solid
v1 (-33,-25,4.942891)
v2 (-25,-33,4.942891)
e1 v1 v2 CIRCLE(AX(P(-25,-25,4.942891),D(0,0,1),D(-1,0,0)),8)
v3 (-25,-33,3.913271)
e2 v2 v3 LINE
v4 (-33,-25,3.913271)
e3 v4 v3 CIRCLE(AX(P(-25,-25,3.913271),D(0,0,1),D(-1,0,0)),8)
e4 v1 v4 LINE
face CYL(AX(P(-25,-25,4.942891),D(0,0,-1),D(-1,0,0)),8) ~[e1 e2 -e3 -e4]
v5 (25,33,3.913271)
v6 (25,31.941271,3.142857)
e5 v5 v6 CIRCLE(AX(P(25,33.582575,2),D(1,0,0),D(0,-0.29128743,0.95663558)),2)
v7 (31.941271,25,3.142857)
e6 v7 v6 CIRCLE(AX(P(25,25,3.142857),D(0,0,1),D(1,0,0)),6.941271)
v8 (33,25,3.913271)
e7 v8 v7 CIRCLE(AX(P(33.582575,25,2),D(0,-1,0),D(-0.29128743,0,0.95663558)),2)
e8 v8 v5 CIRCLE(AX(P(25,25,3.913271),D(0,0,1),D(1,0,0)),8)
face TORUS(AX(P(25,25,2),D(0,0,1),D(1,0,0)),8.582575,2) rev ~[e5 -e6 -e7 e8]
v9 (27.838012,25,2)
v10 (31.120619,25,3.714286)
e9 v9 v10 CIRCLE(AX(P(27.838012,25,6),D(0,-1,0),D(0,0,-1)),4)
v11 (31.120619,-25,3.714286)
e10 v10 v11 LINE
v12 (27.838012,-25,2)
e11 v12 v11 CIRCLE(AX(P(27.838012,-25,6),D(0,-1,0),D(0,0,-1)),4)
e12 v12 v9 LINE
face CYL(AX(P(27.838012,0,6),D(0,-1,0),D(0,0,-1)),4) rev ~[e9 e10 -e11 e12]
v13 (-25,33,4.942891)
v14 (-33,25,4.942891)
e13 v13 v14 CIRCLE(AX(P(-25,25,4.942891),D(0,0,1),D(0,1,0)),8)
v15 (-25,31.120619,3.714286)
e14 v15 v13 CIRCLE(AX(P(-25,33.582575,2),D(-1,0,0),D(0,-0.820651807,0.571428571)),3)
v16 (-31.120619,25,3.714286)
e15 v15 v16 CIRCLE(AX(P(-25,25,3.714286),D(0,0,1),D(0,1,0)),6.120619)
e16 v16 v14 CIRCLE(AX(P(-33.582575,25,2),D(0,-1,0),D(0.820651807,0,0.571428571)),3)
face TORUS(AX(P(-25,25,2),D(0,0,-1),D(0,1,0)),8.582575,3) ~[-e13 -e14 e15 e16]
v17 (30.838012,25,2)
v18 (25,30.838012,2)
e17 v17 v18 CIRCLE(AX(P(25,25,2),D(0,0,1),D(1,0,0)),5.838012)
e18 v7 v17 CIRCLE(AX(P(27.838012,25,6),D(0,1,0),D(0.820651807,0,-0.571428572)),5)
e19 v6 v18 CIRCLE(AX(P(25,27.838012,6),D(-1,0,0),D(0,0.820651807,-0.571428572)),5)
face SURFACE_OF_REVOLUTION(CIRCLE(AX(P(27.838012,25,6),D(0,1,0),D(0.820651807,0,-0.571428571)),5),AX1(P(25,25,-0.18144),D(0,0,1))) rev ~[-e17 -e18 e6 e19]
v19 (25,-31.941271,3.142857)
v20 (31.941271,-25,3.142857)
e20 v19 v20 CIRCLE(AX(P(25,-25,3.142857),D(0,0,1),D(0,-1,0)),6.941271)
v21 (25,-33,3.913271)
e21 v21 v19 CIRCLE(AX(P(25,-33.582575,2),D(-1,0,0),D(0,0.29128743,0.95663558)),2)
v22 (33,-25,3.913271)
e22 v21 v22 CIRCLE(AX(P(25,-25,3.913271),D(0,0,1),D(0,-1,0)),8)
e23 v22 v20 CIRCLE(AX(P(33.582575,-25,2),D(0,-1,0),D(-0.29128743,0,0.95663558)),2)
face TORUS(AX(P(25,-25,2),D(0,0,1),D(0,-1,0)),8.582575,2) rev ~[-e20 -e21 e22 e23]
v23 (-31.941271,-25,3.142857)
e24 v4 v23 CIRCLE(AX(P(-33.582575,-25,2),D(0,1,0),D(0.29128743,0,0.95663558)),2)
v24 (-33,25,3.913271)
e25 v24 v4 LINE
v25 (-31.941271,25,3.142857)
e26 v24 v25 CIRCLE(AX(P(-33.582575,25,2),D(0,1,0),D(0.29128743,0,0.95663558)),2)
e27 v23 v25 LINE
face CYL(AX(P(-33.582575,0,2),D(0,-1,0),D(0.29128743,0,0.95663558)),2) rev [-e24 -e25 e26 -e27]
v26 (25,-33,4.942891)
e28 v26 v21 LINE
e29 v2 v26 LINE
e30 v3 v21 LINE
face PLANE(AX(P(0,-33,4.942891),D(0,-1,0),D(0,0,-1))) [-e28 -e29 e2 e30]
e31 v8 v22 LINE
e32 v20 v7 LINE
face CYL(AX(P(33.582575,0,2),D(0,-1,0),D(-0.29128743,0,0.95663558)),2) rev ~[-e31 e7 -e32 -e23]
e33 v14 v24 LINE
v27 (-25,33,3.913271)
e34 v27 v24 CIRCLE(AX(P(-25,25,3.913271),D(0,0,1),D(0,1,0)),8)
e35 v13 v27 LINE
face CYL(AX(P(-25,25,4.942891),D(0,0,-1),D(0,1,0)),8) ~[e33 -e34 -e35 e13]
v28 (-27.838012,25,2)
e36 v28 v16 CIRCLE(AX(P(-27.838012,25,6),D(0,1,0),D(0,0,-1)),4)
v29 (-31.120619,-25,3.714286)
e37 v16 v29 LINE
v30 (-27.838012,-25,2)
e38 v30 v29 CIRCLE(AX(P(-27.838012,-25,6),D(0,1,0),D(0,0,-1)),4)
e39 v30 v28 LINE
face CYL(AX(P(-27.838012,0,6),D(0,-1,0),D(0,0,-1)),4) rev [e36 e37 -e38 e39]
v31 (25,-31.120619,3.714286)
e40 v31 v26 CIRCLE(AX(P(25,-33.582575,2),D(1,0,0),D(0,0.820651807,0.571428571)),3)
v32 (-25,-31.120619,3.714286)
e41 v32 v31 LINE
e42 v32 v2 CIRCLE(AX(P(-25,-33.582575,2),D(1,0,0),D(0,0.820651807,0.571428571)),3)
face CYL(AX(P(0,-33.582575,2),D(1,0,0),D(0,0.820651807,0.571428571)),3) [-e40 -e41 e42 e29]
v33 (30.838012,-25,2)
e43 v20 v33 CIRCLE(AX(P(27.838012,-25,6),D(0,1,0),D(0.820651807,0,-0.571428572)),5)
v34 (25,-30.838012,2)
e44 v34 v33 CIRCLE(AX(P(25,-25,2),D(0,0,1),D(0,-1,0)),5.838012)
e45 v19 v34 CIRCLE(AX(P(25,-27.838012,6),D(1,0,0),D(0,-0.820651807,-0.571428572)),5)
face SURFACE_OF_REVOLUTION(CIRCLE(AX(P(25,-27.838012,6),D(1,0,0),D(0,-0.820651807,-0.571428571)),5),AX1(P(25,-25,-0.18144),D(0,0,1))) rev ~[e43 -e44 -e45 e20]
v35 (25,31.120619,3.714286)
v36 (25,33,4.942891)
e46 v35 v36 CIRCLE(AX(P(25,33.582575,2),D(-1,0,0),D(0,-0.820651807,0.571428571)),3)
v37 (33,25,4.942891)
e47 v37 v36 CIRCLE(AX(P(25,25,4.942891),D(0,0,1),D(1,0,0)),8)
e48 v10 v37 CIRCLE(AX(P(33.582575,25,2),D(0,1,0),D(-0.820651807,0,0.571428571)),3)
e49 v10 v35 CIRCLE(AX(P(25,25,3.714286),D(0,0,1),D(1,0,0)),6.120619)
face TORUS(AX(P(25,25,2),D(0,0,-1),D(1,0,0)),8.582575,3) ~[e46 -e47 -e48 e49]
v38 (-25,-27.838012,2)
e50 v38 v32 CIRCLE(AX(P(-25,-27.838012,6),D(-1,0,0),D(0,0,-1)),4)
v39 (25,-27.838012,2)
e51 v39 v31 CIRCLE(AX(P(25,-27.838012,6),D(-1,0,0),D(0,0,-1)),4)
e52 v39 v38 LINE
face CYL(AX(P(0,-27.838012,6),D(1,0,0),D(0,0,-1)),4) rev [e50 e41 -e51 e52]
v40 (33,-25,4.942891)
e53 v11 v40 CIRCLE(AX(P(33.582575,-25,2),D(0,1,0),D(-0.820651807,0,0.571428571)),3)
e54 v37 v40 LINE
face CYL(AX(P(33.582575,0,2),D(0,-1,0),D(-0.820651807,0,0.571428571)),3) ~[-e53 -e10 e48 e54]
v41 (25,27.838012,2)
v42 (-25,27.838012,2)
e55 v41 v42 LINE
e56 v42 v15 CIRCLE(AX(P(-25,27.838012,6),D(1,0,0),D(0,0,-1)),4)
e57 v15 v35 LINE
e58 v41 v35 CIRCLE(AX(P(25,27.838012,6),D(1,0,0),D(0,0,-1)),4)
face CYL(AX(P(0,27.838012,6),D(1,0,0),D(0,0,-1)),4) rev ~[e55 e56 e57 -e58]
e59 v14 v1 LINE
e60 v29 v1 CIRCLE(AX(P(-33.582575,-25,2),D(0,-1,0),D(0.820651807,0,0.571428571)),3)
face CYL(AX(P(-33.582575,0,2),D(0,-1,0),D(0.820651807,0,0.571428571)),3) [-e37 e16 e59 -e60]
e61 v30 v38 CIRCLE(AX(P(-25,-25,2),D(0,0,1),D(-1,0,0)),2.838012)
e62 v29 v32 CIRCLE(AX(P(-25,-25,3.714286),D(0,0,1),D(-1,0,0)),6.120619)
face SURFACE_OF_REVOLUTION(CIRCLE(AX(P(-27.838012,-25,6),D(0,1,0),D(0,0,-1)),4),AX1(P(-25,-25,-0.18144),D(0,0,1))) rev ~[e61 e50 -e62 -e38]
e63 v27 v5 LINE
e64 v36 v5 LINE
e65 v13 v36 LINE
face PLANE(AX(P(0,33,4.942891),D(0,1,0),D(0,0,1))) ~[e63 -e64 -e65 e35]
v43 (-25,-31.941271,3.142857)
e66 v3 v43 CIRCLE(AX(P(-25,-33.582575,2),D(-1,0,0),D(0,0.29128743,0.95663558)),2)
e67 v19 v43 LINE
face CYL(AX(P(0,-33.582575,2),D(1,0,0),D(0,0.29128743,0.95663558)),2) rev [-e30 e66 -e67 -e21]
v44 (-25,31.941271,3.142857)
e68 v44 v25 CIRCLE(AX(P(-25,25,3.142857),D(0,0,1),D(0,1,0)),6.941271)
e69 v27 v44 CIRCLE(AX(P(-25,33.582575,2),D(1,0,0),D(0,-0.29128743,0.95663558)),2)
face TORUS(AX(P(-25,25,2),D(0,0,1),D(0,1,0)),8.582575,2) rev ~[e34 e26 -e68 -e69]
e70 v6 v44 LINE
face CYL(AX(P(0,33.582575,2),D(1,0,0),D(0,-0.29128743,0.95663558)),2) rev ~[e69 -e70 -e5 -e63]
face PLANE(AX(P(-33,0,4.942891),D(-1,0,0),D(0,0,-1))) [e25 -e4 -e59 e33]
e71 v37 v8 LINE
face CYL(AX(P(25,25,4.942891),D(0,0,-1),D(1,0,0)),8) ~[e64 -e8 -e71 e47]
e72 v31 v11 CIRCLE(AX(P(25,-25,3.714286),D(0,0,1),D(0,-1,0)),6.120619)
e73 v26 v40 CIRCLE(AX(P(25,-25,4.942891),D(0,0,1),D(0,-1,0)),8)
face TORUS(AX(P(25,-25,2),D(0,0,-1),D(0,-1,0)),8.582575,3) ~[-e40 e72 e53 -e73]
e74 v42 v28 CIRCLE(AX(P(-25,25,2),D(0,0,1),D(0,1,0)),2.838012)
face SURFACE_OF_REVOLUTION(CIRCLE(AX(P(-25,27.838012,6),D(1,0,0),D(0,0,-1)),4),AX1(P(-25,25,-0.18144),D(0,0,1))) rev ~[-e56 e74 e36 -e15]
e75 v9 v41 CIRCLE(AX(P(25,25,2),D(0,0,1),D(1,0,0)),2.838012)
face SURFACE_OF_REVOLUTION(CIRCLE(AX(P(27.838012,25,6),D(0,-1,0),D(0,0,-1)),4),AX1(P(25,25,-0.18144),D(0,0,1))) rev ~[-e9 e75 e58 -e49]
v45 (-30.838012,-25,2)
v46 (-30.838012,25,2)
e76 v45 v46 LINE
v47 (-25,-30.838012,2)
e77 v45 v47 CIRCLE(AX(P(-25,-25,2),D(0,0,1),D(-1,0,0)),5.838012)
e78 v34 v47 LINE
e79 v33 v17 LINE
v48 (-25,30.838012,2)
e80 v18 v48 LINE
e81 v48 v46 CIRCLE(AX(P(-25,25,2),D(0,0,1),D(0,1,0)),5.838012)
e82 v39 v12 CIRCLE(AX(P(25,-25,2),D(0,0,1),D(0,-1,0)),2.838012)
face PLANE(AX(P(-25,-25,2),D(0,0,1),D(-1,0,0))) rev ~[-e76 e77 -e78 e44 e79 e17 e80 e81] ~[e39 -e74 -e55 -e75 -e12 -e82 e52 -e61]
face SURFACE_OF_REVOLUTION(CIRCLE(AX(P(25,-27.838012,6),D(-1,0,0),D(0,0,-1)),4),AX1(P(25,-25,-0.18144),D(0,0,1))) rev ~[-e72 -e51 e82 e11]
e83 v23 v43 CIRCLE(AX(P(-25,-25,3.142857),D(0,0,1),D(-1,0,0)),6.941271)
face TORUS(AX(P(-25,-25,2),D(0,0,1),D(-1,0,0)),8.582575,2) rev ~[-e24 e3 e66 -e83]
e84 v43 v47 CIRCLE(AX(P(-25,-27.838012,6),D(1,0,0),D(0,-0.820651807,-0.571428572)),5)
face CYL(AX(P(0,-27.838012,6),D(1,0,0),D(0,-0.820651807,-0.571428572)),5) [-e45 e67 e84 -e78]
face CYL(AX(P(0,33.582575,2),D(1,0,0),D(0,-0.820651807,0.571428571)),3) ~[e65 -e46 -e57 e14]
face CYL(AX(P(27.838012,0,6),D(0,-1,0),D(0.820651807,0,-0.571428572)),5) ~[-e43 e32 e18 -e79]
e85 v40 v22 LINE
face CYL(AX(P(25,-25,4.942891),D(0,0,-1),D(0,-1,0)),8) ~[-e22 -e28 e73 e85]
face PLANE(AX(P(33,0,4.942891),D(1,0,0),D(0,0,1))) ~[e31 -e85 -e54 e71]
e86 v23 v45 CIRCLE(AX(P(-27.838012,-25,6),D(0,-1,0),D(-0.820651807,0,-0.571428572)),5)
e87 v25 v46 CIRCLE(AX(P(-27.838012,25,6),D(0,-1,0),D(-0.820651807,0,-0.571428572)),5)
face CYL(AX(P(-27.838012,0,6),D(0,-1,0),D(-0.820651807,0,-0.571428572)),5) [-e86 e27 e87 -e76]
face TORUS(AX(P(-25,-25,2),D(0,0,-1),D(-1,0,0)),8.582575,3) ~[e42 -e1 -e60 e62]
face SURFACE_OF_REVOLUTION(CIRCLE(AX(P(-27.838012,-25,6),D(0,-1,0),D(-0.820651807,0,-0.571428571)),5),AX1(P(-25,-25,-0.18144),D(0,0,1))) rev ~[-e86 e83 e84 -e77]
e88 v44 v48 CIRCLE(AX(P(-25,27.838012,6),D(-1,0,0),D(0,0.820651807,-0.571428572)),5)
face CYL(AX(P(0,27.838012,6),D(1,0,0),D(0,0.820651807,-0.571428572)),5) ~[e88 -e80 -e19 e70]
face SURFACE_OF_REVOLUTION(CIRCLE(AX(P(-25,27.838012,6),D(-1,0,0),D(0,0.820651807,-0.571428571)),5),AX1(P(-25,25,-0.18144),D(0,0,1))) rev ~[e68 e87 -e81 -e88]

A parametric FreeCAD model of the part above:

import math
import FreeCAD as App
import Part
import Sketcher

V = App.Vector

doc = App.newDocument("Part")
body = doc.addObject("PartDesign::Body", "Body")

sketch1 = doc.addObject("Sketcher::SketchObject", "Sketch")
body.addObject(sketch1)
sketch1.AttachmentSupport = (doc.XZ_Plane, [""])
sketch1.MapMode = "FlatFace"
sketch1.addGeometry([
    Part.ArcOfCircle(Part.Circle(V(-27.8, 6, 0), V(0, 0, 1), 4), math.radians(-145), math.radians(-90)),
    Part.ArcOfCircle(Part.Circle(V(-33.6, 2, 0), V(0, 0, 1), 3), math.radians(35), math.radians(79)),
    Part.LineSegment(V(-33, 4.9, 0), V(-33, 3.9, 0)),
    Part.ArcOfCircle(Part.Circle(V(-33.6, 2, 0), V(0, 0, 1), 2), math.radians(35), math.radians(73)),
    Part.ArcOfCircle(Part.Circle(V(-27.8, 6, 0), V(0, 0, 1), 5), math.radians(-145.15), math.radians(-126.87)),
    Part.LineSegment(V(-30.8, 2, 0), V(-27.8, 2, 0)),
], False)
sketch1.addConstraint([
    Sketcher.Constraint("Tangent", 0, 1, 1, 1),
    Sketcher.Constraint("Coincident", 1, 2, 2, 1),
    Sketcher.Constraint("Coincident", 2, 2, 3, 2),
    Sketcher.Constraint("Tangent", 3, 1, 4, 1),
    Sketcher.Constraint("Coincident", 4, 2, 5, 1),
    Sketcher.Constraint("Tangent", 5, 2, 0, 2),
    Sketcher.Constraint("Vertical", 2),
    Sketcher.Constraint("Horizontal", 5),
    Sketcher.Constraint("Coincident", 3, 3, 1, 3),
    Sketcher.Constraint("Coincident", 4, 3, 0, 3),
    Sketcher.Constraint("Horizontal", 3, 3, 4, 2),
    Sketcher.Constraint("Radius", 0, 4.0),
    Sketcher.Constraint("Radius", 1, 3.0),
    Sketcher.Constraint("Radius", 3, 2.0),
    Sketcher.Constraint("DistanceY", -1, 1, 0, 3, 6.0),
    Sketcher.Constraint("DistanceX", 1, 2, -1, 1, 33.0),
    Sketcher.Constraint("DistanceY", 2, 2, 2, 1, 1.02962),
])
pad1 = doc.addObject("PartDesign::Pad", "Pad")
body.addObject(pad1)
pad1.Profile = sketch1
pad1.Length = 50
pad1.Midplane = True
body2 = doc.addObject("PartDesign::Body", "Body001")
doc.recompute()

mirroring = doc.addObject("Part::Mirroring", "Mirroring")
mirroring.Source = body
mirroring.Base = V(0, 0, 0)
mirroring.Normal = V(1, 0, 0)
body2.BaseFeature = mirroring
doc.recompute()
body3 = doc.addObject("PartDesign::Body", "Body002")
body3.AllowCompound = True
doc.recompute()

body3.BaseFeature = body
doc.recompute()

body4 = doc.addObject("PartDesign::Body", "Body003")
body4.BaseFeature = body2
boolean = doc.addObject("PartDesign::Boolean", "Boolean")
body3.addObject(boolean)
boolean.Type = "Fuse"
boolean.addObjects([body4])
doc.recompute()

body5 = doc.addObject("PartDesign::Body", "Body004")
body5.BaseFeature = body
body5.Placement = App.Placement(V(0, 0, 0), App.Rotation(V(0, 0, 1), 90))
boolean2 = doc.addObject("PartDesign::Boolean", "Boolean001")
body3.addObject(boolean2)
boolean2.Type = "Fuse"
boolean2.addObjects([body5])
doc.recompute()

body6 = doc.addObject("PartDesign::Body", "Body005")
body6.BaseFeature = body2
body6.Placement = App.Placement(V(0, 0, 0), App.Rotation(V(0, 0, 1), 90))
boolean3 = doc.addObject("PartDesign::Boolean", "Boolean002")
body3.addObject(boolean3)
boolean3.Type = "Fuse"
boolean3.addObjects([body6])
doc.recompute()

body7 = doc.addObject("PartDesign::Body", "Body006")
body7.BaseFeature = body
body7.Placement = App.Placement(V(0, 0, 0), App.Rotation(V(0, 0, 1), 180))
boolean4 = doc.addObject("PartDesign::Boolean", "Boolean003")
body3.addObject(boolean4)
boolean4.Type = "Fuse"
boolean4.addObjects([body7])
doc.recompute()

body8 = doc.addObject("PartDesign::Body", "Body007")
body8.BaseFeature = body2
body8.Placement = App.Placement(V(0, 0, 0), App.Rotation(V(0, 0, 1), 180))
boolean5 = doc.addObject("PartDesign::Boolean", "Boolean004")
body3.addObject(boolean5)
boolean5.Type = "Fuse"
boolean5.addObjects([body8])
doc.recompute()

body.Placement = App.Placement(V(0, 0, 0), App.Rotation(V(0, 0, 1), 270))
boolean6 = doc.addObject("PartDesign::Boolean", "Boolean005")
body3.addObject(boolean6)
boolean6.Type = "Fuse"
boolean6.addObjects([body])
doc.recompute()

body2.Placement = App.Placement(V(0, 0, 0), App.Rotation(V(0, 0, 1), 270))
boolean7 = doc.addObject("PartDesign::Boolean", "Boolean006")
body3.addObject(boolean7)
boolean7.Type = "Fuse"
boolean7.addObjects([body2])

sketch2 = doc.addObject("Sketcher::SketchObject", "Sketch001")
body3.addObject(sketch2)
sketch2.AttachmentSupport = (doc.getObject("YZ_Plane002"), [""])
sketch2.MapMode = "FlatFace"
sketch2.AttachmentOffset = App.Placement(V(0, 0, 25), App.Rotation())
sketch2.addGeometry([
    Part.LineSegment(V(-30.8, 2, 0), V(-27.8, 2, 0)),
    Part.ArcOfCircle(Part.Circle(V(-27.8, 6, 0), V(0, 0, 1), 4), math.radians(-145), math.radians(-90)),
    Part.ArcOfCircle(Part.Circle(V(-33.6, 2, 0), V(0, 0, 1), 3), math.radians(35), math.radians(79)),
    Part.LineSegment(V(-33, 4.9, 0), V(-33, 3.9, 0)),
    Part.ArcOfCircle(Part.Circle(V(-33.6, 2, 0), V(0, 0, 1), 2), math.radians(35), math.radians(73)),
    Part.ArcOfCircle(Part.Circle(V(-27.8, 6, 0), V(0, 0, 1), 5), math.radians(-145.15), math.radians(-126.87)),
], False)
sketch2.addGeometry(Part.LineSegment(V(-25, 2, 0), V(-25, 6, 0)), True)
sketch2.addConstraint([
    Sketcher.Constraint("Tangent", 0, 2, 1, 2),
    Sketcher.Constraint("Tangent", 1, 1, 2, 1),
    Sketcher.Constraint("Coincident", 2, 2, 3, 1),
    Sketcher.Constraint("Coincident", 3, 2, 4, 2),
    Sketcher.Constraint("Tangent", 4, 1, 5, 1),
    Sketcher.Constraint("Coincident", 5, 2, 0, 1),
    Sketcher.Constraint("Horizontal", 0),
    Sketcher.Constraint("Vertical", 3),
    Sketcher.Constraint("Vertical", 6),
    Sketcher.Constraint("Coincident", 4, 3, 2, 3),
    Sketcher.Constraint("Coincident", 5, 3, 1, 3),
    Sketcher.Constraint("Horizontal", 4, 3, 0, 2),
    Sketcher.Constraint("Horizontal", 5, 2, 6, 1),
    Sketcher.Constraint("Horizontal", 5, 3, 6, 2),
    Sketcher.Constraint("Radius", 1, 4.0),
    Sketcher.Constraint("Radius", 2, 3.0),
    Sketcher.Constraint("Radius", 4, 2.0),
    Sketcher.Constraint("DistanceY", -1, 1, 1, 3, 6.0),
    Sketcher.Constraint("DistanceX", 2, 2, -1, 1, 33.0),
    Sketcher.Constraint("DistanceX", 6, 1, -1, 1, 25.0),
    Sketcher.Constraint("DistanceY", 3, 2, 3, 1, 1.02962),
])
revolution = doc.addObject("PartDesign::Revolution", "Revolution")
body3.addObject(revolution)
revolution.Profile = sketch2
revolution.ReferenceAxis = (sketch2, ["Axis0"])
revolution.Angle = 90
body9 = doc.addObject("PartDesign::Body", "Body008")
body9.AllowCompound = True
doc.recompute()

body9.BaseFeature = body3
doc.recompute()

body10 = doc.addObject("PartDesign::Body", "Body009")
body10.BaseFeature = body3
body10.Placement = App.Placement(V(0, 0, 0), App.Rotation(V(0, 0, 1), 90))
boolean8 = doc.addObject("PartDesign::Boolean", "Boolean007")
body9.addObject(boolean8)
boolean8.Type = "Fuse"
boolean8.addObjects([body10])
doc.recompute()

body11 = doc.addObject("PartDesign::Body", "Body010")
body11.BaseFeature = body3
body11.Placement = App.Placement(V(0, 0, 0), App.Rotation(V(0, 0, 1), 180))
boolean9 = doc.addObject("PartDesign::Boolean", "Boolean008")
body9.addObject(boolean9)
boolean9.Type = "Fuse"
boolean9.addObjects([body11])
doc.recompute()

body3.Placement = App.Placement(V(0, 0, 0), App.Rotation(V(0, 0, 1), 270))
boolean10 = doc.addObject("PartDesign::Boolean", "Boolean009")
body9.addObject(boolean10)
boolean10.Type = "Fuse"
boolean10.addObjects([body3])
mirroring.Visibility = False

doc.recompute()
